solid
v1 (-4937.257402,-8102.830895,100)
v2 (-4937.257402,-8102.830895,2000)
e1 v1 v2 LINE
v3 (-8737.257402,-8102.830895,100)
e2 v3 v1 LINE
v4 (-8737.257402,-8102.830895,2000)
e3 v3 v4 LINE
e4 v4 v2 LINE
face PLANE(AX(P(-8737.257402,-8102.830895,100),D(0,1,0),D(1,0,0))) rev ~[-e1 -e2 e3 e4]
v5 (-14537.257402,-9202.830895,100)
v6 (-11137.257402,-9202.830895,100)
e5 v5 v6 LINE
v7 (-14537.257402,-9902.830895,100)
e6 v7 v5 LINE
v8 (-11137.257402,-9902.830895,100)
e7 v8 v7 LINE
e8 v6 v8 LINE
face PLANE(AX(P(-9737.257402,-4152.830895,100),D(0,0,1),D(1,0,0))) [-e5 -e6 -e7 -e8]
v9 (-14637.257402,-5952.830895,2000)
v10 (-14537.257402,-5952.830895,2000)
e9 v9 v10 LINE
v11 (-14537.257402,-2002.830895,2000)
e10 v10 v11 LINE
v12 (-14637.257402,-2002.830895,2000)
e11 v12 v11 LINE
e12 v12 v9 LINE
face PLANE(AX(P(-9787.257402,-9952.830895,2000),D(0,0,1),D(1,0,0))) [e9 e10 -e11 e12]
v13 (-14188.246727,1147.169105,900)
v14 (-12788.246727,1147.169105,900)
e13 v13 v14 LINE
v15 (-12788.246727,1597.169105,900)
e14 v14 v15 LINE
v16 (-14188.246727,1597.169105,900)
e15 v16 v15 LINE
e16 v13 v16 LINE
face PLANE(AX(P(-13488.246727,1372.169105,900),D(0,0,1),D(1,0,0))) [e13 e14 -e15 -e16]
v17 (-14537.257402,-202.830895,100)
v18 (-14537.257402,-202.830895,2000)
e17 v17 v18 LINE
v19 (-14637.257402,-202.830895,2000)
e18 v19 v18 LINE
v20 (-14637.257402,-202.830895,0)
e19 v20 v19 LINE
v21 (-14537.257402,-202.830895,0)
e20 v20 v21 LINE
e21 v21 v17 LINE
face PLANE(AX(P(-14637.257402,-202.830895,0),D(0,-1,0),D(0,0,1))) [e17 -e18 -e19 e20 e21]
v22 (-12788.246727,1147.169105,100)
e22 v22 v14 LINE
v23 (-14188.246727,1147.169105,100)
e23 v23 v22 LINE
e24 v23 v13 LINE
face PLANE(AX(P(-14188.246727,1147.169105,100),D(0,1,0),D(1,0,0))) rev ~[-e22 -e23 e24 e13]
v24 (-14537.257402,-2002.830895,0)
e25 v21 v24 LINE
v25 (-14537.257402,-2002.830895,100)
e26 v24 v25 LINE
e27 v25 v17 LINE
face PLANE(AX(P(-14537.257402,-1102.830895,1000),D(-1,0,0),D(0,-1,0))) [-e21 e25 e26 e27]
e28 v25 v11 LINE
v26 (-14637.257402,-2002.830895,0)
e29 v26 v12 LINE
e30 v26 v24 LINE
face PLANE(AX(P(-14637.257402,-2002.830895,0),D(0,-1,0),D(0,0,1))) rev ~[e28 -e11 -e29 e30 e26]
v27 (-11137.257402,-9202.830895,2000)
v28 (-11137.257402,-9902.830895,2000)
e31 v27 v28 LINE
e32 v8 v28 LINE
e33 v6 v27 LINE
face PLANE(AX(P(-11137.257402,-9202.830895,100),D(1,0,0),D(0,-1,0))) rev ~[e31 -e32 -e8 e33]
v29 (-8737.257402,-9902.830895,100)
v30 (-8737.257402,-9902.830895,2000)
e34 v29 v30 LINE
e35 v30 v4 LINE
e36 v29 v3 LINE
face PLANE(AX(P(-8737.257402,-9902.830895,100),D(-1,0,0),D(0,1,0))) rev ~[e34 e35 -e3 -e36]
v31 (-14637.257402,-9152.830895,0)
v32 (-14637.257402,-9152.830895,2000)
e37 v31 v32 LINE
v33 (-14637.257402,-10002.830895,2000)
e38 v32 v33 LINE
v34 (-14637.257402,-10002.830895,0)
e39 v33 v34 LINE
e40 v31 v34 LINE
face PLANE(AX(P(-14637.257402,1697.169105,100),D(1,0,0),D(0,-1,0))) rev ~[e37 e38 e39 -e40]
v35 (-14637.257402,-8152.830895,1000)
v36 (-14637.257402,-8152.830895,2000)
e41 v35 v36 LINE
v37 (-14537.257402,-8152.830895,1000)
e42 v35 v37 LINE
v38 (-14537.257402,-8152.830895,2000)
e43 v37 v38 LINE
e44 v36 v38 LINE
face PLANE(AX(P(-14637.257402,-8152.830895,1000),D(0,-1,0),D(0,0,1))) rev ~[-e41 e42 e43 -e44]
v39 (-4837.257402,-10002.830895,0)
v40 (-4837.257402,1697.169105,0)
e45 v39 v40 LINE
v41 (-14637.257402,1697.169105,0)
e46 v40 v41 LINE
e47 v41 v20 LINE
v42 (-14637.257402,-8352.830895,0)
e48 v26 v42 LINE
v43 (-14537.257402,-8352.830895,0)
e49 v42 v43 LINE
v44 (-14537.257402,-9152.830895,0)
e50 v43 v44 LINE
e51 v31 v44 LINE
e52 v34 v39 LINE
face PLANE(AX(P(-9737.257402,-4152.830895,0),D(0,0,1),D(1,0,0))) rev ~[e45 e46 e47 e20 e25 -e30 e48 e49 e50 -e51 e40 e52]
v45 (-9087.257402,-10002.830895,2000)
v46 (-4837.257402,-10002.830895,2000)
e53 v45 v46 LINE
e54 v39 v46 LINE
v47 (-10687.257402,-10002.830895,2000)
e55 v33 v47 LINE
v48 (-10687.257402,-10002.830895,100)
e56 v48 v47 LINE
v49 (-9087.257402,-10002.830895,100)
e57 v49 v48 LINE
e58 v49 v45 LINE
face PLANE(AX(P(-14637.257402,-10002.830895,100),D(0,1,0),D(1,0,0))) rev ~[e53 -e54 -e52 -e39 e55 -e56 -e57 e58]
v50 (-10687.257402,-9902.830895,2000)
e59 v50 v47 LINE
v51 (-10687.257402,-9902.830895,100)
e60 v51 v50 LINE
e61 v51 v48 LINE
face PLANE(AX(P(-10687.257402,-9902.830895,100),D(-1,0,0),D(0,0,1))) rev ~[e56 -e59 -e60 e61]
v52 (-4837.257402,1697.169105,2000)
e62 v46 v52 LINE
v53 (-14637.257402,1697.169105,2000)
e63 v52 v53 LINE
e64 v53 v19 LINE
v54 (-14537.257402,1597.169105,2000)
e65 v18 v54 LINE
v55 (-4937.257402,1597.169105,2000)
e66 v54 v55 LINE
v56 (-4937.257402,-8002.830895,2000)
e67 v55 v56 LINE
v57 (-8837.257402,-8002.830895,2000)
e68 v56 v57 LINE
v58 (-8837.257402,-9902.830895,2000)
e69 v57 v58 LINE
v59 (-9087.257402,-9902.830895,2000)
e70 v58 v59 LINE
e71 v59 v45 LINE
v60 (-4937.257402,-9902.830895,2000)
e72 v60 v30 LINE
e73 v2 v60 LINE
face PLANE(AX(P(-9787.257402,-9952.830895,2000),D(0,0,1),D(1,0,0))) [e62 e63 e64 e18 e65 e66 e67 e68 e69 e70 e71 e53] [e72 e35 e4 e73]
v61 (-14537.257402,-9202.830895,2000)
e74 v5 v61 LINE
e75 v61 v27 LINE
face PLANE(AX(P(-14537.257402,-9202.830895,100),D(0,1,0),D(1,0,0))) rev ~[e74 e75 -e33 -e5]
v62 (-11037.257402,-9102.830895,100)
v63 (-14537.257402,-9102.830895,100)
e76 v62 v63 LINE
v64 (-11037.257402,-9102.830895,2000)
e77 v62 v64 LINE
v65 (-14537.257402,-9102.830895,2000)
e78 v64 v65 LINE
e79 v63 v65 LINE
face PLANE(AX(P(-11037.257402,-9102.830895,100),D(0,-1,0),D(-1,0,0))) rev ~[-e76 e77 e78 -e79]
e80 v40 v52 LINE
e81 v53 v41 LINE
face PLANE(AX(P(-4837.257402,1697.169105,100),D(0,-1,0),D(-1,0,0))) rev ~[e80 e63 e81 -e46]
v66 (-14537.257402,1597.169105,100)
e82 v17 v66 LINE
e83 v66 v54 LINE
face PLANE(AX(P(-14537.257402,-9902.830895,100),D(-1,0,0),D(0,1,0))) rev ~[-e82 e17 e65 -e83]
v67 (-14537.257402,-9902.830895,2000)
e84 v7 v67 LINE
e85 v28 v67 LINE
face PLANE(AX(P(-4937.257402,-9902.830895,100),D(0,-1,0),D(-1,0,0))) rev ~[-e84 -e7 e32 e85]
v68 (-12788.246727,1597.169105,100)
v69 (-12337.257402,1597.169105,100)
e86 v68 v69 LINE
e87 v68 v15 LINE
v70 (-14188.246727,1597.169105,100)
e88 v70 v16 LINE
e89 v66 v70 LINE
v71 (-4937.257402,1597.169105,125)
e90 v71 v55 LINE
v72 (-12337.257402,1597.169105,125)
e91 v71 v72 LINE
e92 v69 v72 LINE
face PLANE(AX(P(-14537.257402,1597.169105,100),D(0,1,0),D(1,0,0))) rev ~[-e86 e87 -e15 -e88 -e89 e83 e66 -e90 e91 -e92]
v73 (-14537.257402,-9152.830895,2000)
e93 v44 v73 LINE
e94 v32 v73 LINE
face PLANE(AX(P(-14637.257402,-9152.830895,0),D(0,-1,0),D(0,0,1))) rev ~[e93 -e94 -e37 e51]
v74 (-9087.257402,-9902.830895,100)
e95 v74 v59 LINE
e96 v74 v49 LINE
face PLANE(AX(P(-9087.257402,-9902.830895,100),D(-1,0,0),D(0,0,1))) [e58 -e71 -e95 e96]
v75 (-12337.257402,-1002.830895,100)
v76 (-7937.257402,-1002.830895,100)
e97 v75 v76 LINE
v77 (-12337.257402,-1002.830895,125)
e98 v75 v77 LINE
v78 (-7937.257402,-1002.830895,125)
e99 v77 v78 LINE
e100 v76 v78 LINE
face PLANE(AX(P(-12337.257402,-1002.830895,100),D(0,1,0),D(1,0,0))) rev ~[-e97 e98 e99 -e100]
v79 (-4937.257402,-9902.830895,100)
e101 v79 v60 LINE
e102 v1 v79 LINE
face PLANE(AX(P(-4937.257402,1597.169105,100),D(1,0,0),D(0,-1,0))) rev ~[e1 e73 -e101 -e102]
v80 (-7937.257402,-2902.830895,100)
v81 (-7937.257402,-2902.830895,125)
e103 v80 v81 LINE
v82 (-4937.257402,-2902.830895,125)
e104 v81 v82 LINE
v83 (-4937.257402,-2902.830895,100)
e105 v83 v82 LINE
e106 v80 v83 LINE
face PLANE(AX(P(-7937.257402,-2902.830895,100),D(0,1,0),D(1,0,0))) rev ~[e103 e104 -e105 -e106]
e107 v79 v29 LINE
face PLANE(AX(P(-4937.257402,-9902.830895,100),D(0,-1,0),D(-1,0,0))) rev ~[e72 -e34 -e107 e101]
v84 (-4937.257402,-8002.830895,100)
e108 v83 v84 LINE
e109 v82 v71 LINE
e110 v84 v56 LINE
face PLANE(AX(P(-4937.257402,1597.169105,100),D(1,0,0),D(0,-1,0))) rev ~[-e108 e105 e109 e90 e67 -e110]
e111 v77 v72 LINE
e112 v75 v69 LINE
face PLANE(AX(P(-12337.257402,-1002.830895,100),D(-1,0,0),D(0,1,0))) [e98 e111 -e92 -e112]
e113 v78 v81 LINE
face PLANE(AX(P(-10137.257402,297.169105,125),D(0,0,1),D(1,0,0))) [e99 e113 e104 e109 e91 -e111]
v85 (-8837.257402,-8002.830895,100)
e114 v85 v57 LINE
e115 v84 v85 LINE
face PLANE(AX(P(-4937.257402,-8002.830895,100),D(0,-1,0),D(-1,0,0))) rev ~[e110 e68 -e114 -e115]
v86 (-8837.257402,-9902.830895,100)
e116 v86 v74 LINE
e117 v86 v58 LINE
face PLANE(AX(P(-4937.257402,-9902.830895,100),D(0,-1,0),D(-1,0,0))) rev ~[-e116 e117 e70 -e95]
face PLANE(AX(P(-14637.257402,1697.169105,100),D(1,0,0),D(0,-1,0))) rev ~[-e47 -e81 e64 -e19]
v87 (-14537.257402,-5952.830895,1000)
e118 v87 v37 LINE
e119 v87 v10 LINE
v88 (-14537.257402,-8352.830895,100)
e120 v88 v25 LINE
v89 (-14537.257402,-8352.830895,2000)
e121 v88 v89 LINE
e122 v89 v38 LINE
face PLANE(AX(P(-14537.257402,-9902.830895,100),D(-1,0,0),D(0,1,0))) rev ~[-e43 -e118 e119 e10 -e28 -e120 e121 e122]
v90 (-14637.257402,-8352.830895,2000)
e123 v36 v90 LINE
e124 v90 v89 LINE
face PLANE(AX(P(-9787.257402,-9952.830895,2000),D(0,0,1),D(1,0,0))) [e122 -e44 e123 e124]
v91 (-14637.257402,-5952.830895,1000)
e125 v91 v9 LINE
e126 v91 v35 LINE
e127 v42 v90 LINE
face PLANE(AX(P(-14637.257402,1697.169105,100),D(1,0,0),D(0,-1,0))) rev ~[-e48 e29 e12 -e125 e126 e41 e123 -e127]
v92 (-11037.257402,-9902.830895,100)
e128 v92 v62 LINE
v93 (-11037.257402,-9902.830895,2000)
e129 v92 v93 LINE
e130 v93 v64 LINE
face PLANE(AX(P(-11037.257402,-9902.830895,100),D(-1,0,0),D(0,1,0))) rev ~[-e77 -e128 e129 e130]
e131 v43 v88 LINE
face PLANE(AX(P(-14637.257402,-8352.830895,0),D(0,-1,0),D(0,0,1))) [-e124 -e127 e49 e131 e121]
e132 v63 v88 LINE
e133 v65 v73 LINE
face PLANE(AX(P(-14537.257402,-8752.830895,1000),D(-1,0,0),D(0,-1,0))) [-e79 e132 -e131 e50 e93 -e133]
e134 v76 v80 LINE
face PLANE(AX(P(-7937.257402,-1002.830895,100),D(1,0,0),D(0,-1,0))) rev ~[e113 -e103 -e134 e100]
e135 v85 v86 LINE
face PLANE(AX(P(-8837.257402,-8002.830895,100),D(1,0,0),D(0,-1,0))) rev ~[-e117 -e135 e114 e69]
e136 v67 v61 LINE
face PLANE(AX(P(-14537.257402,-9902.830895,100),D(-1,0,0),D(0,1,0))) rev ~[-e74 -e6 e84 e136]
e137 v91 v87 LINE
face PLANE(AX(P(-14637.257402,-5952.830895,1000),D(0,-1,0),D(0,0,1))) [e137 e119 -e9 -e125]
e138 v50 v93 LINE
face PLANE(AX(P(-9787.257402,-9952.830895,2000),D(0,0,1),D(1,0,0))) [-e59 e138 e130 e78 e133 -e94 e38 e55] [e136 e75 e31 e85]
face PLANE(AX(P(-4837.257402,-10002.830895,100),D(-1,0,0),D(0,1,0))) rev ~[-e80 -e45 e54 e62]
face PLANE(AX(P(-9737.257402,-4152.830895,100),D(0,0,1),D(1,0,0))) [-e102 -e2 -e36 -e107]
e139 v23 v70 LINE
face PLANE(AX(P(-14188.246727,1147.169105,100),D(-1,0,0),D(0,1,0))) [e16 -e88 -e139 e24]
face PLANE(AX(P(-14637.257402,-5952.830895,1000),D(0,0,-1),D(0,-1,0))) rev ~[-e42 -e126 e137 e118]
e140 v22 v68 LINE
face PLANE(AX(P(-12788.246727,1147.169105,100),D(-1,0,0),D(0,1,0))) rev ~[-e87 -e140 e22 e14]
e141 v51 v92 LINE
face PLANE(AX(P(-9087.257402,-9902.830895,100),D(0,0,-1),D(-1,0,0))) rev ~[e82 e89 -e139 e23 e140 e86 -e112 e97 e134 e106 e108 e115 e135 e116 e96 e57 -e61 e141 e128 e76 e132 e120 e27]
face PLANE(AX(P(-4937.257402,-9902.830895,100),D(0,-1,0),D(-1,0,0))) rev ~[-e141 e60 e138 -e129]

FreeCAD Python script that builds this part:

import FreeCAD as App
import Part
import Sketcher


def add_polygon(sketch, points):
    """Adds a closed chain of lines whose ends are joined by coincident constraints."""
    first, n = sketch.GeometryCount, len(points)
    for a, b in zip(points, points[1:] + points[:1]):
        sketch.addGeometry(Part.LineSegment(App.Vector(*a, 0), App.Vector(*b, 0)), False)
    for i in range(n):
        sketch.addConstraint(Sketcher.Constraint("Coincident", first + i, 2, first + (i + 1) % n, 1))

doc = App.newDocument("Part")
params = doc.addObject("Spreadsheet::Sheet", "Params")
for row, (alias, value) in enumerate([
    ("sketch1_width", "9800 mm"),
    ("sketch1_height", "11700 mm"),
    ("pad1_length", "100 mm"),
    ("sketch2_width", "9800 mm"),
    ("sketch2_width2", "9600 mm"),
    ("sketch2_height", "11700 mm"),
    ("sketch2_height2", "11500 mm"),
    ("pad2_length", "1900 mm"),
    ("sketch3_width", "100 mm"),
    ("sketch3_width2", "3500 mm"),
    ("sketch3_width3", "3800 mm"),
    ("sketch3_height", "800 mm"),
    ("sketch3_height2", "1900 mm"),
    ("pad3_length", "1900 mm"),
    ("sketch4_width", "1800 mm"),
    ("sketch4_width2", "800 mm"),
    ("sketch4_width3", "2200 mm"),
    ("sketch4_height", "2000 mm"),
    ("sketch4_height2", "1000 mm"),
    ("pocket1_length", "100 mm"),
    ("sketch5_width", "1600 mm"),
    ("sketch5_height", "2000 mm"),
    ("pocket2_length", "100 mm"),
    ("sketch6_width", "4400 mm"),
    ("sketch6_width2", "3000 mm"),
    ("sketch6_height", "2600 mm"),
    ("sketch6_height2", "1900 mm"),
    ("pad4_length", "25 mm"),
    ("sketch7_width", "1400 mm"),
    ("sketch7_height", "450 mm"),
    ("pad5_length", "800 mm"),
], start=1):
    params.set(f"A{row}", alias)
    params.set(f"B{row}", "=" + value)
    params.setAlias(f"B{row}", alias)

body = doc.addObject("PartDesign::Body", "Body")

# Sketch on XY plane
sketch1 = body.newObject("Sketcher::SketchObject", "Sketch")
sketch1.AttachmentSupport = (doc.getObject("XY_Plane"), [""])
sketch1.MapMode = "FlatFace"
add_polygon(sketch1, [(-4837, 1697), (-14637, 1697), (-14637, -10003), (-4837, -10003)])  # lines 0-3
sketch1.addConstraint([
    Sketcher.Constraint("Horizontal", 0),
    Sketcher.Constraint("Vertical", 1),
    Sketcher.Constraint("Horizontal", 2),
    Sketcher.Constraint("Vertical", 3),
    Sketcher.Constraint("DistanceX", 0, 2, 0, 1, 9800.0),
    Sketcher.Constraint("DistanceY", 1, 2, 1, 1, 11700.0),
    Sketcher.Constraint("DistanceX", 0, 2, -1, 1, 14637.257402),
    Sketcher.Constraint("DistanceY", -1, 1, 0, 2, 1697.169105),
])
sketch1.setExpression("Constraints[8]", "Params.sketch1_width")
sketch1.setExpression("Constraints[9]", "Params.sketch1_height")
pad1 = body.newObject("PartDesign::Pad", "Pad")
pad1.Profile = sketch1
pad1.setExpression("Length", "Params.pad1_length")

# Sketch on XY plane
sketch2 = body.newObject("Sketcher::SketchObject", "Sketch001")
sketch2.AttachmentSupport = (doc.getObject("XY_Plane"), [""])
sketch2.MapMode = "FlatFace"
sketch2.AttachmentOffset = App.Placement(App.Vector(0, 0, 100), App.Rotation())
add_polygon(sketch2, [(-14637, -10003), (-4837, -10003), (-4837, 1697), (-14637, 1697)])  # lines 0-3
add_polygon(sketch2, [(-4937, 1597), (-4937, -9903), (-14537, -9903), (-14537, 1597)])  # lines 4-7
sketch2.addConstraint([
    Sketcher.Constraint("Horizontal", 0),
    Sketcher.Constraint("Vertical", 1),
    Sketcher.Constraint("Horizontal", 2),
    Sketcher.Constraint("Vertical", 3),
    Sketcher.Constraint("Vertical", 4),
    Sketcher.Constraint("Horizontal", 5),
    Sketcher.Constraint("Vertical", 6),
    Sketcher.Constraint("Horizontal", 7),
    Sketcher.Constraint("DistanceX", 0, 1, 0, 2, 9800.0),
    Sketcher.Constraint("DistanceX", 5, 2, 5, 1, 9600.0),
    Sketcher.Constraint("DistanceY", 1, 1, 1, 2, 11700.0),
    Sketcher.Constraint("DistanceY", 4, 2, 4, 1, 11500.0),
    Sketcher.Constraint("DistanceX", 4, 2, 0, 2, 100.0),
    Sketcher.Constraint("DistanceY", 0, 2, 4, 2, 100.0),
    Sketcher.Constraint("DistanceX", 0, 2, -1, 1, 4837.257402),
    Sketcher.Constraint("DistanceY", 0, 2, -1, 1, 10002.830895),
])
sketch2.setExpression("Constraints[16]", "Params.sketch2_width")
sketch2.setExpression("Constraints[17]", "Params.sketch2_width2")
sketch2.setExpression("Constraints[18]", "Params.sketch2_height")
sketch2.setExpression("Constraints[19]", "Params.sketch2_height2")
pad2 = body.newObject("PartDesign::Pad", "Pad001")
pad2.Profile = sketch2
pad2.setExpression("Length", "Params.pad2_length")

# Sketch on XY plane
sketch3 = body.newObject("Sketcher::SketchObject", "Sketch002")
sketch3.AttachmentSupport = (doc.getObject("XY_Plane"), [""])
sketch3.MapMode = "FlatFace"
sketch3.AttachmentOffset = App.Placement(App.Vector(0, 0, 100), App.Rotation())
add_polygon(sketch3, [(-11137, -9903), (-11037, -9903), (-11037, -9103), (-14537, -9103), (-14537, -9203), (-11137, -9203)])  # lines 0-5
add_polygon(sketch3, [(-8837, -8003), (-8837, -9903), (-8737, -9903), (-8737, -8103), (-4937, -8103), (-4937, -8003)])  # lines 6-11
sketch3.addConstraint([
    Sketcher.Constraint("Horizontal", 0),
    Sketcher.Constraint("Vertical", 1),
    Sketcher.Constraint("Horizontal", 2),
    Sketcher.Constraint("Vertical", 3),
    Sketcher.Constraint("Horizontal", 4),
    Sketcher.Constraint("Vertical", 5),
    Sketcher.Constraint("Vertical", 6),
    Sketcher.Constraint("Horizontal", 7),
    Sketcher.Constraint("Vertical", 8),
    Sketcher.Constraint("Horizontal", 9),
    Sketcher.Constraint("Vertical", 10),
    Sketcher.Constraint("Horizontal", 11),
    Sketcher.Constraint("Horizontal", 5, 2, 6, 2),
    Sketcher.Constraint("Equal", 0, 7),
    Sketcher.Constraint("Equal", 7, 3),
    Sketcher.Constraint("Equal", 3, 10),
    Sketcher.Constraint("DistanceX", 0, 1, 0, 2, 100.0),
    Sketcher.Constraint("DistanceX", 2, 2, 2, 1, 3500.0),
    Sketcher.Constraint("DistanceX", 9, 1, 9, 2, 3800.0),
    Sketcher.Constraint("DistanceY", 1, 1, 1, 2, 800.0),
    Sketcher.Constraint("DistanceY", 6, 2, 6, 1, 1900.0),
    Sketcher.Constraint("DistanceX", 0, 2, 6, 2, 2200.0),
    Sketcher.Constraint("DistanceX", 0, 2, -1, 1, 11037.257402),
    Sketcher.Constraint("DistanceY", 0, 2, -1, 1, 9902.830895),
])
sketch3.setExpression("Constraints[28]", "Params.sketch3_width")
sketch3.setExpression("Constraints[29]", "Params.sketch3_width2")
sketch3.setExpression("Constraints[30]", "Params.sketch3_width3")
sketch3.setExpression("Constraints[31]", "Params.sketch3_height")
sketch3.setExpression("Constraints[32]", "Params.sketch3_height2")
pad3 = body.newObject("PartDesign::Pad", "Pad002")
pad3.Profile = sketch3
pad3.setExpression("Length", "Params.pad3_length")

# Sketch on YZ plane
sketch4 = body.newObject("Sketcher::SketchObject", "Sketch003")
sketch4.AttachmentSupport = (doc.getObject("YZ_Plane"), [""])
sketch4.MapMode = "FlatFace"
sketch4.AttachmentOffset = App.Placement(App.Vector(0, 0, -14637.257402), App.Rotation())
add_polygon(sketch4, [(-203, 2000), (-203, 0), (-2003, 0), (-2003, 2000)])  # lines 0-3
add_polygon(sketch4, [(-8353, 2000), (-8353, 0), (-9153, 0), (-9153, 2000)])  # lines 4-7
add_polygon(sketch4, [(-5953, 2000), (-5953, 1000), (-8153, 1000), (-8153, 2000)])  # lines 8-11
sketch4.addConstraint([
    Sketcher.Constraint("Vertical", 0),
    Sketcher.Constraint("Horizontal", 1),
    Sketcher.Constraint("Vertical", 2),
    Sketcher.Constraint("Horizontal", 3),
    Sketcher.Constraint("Vertical", 4),
    Sketcher.Constraint("Horizontal", 5),
    Sketcher.Constraint("Vertical", 6),
    Sketcher.Constraint("Horizontal", 7),
    Sketcher.Constraint("Vertical", 8),
    Sketcher.Constraint("Horizontal", 9),
    Sketcher.Constraint("Vertical", 10),
    Sketcher.Constraint("Horizontal", 11),
    Sketcher.Constraint("PointOnObject", 0, 2, -1),
    Sketcher.Constraint("PointOnObject", 4, 2, -1),
    Sketcher.Constraint("Horizontal", 3, 2, 6, 2),
    Sketcher.Constraint("Horizontal", 7, 2, 10, 2),
    Sketcher.Constraint("DistanceX", 1, 2, 1, 1, 1800.0),
    Sketcher.Constraint("DistanceX", 5, 2, 5, 1, 800.0),
    Sketcher.Constraint("DistanceX", 9, 2, 9, 1, 2200.0),
    Sketcher.Constraint("DistanceY", 0, 2, 0, 1, 2000.0),
    Sketcher.Constraint("DistanceY", 8, 2, 8, 1, 1000.0),
    Sketcher.Constraint("DistanceX", 4, 2, 1, 2, 6350.0),
    Sketcher.Constraint("DistanceX", 4, 2, 8, 2, 2400.0),
    Sketcher.Constraint("DistanceX", 0, 2, -1, 1, 202.830895),
])
sketch4.setExpression("Constraints[28]", "Params.sketch4_width")
sketch4.setExpression("Constraints[29]", "Params.sketch4_width2")
sketch4.setExpression("Constraints[30]", "Params.sketch4_width3")
sketch4.setExpression("Constraints[31]", "Params.sketch4_height")
sketch4.setExpression("Constraints[32]", "Params.sketch4_height2")
pocket1 = body.newObject("PartDesign::Pocket", "Pocket")
pocket1.Profile = sketch4
pocket1.setExpression("Length", "Params.pocket1_length")
pocket1.Reversed = True

# Sketch on XZ plane
sketch5 = body.newObject("Sketcher::SketchObject", "Sketch004")
sketch5.AttachmentSupport = (doc.getObject("XZ_Plane"), [""])
sketch5.MapMode = "FlatFace"
sketch5.AttachmentOffset = App.Placement(App.Vector(0, 0, 9902.830895), App.Rotation())
add_polygon(sketch5, [(-9087, 2100), (-9087, 100), (-10687, 100), (-10687, 2100)])  # lines 0-3
sketch5.addConstraint([
    Sketcher.Constraint("Vertical", 0),
    Sketcher.Constraint("Horizontal", 1),
    Sketcher.Constraint("Vertical", 2),
    Sketcher.Constraint("Horizontal", 3),
    Sketcher.Constraint("DistanceX", 1, 2, 1, 1, 1600.0),
    Sketcher.Constraint("DistanceY", 0, 2, 0, 1, 2000.0),
    Sketcher.Constraint("DistanceY", -1, 1, 0, 2, 100.0),
    Sketcher.Constraint("DistanceX", 0, 2, -1, 1, 9087.257402),
])
sketch5.setExpression("Constraints[8]", "Params.sketch5_width")
sketch5.setExpression("Constraints[9]", "Params.sketch5_height")
pocket2 = body.newObject("PartDesign::Pocket", "Pocket001")
pocket2.Profile = sketch5
pocket2.setExpression("Length", "Params.pocket2_length")
pocket2.Reversed = True

# Sketch on XY plane
sketch6 = body.newObject("Sketcher::SketchObject", "Sketch005")
sketch6.AttachmentSupport = (doc.getObject("XY_Plane"), [""])
sketch6.MapMode = "FlatFace"
sketch6.AttachmentOffset = App.Placement(App.Vector(0, 0, 100), App.Rotation())
add_polygon(sketch6, [(-12337, 1597), (-12337, -1003), (-7937, -1003), (-7937, -2903), (-4937, -2903), (-4937, 1597)])  # lines 0-5
sketch6.addConstraint([
    Sketcher.Constraint("Vertical", 0),
    Sketcher.Constraint("Horizontal", 1),
    Sketcher.Constraint("Vertical", 2),
    Sketcher.Constraint("Horizontal", 3),
    Sketcher.Constraint("Vertical", 4),
    Sketcher.Constraint("Horizontal", 5),
    Sketcher.Constraint("DistanceX", 1, 1, 1, 2, 4400.0),
    Sketcher.Constraint("DistanceX", 3, 1, 3, 2, 3000.0),
    Sketcher.Constraint("DistanceY", 0, 2, 0, 1, 2600.0),
    Sketcher.Constraint("DistanceY", 2, 2, 2, 1, 1900.0),
    Sketcher.Constraint("DistanceX", 0, 2, -1, 1, 12337.257402),
    Sketcher.Constraint("DistanceY", 0, 2, -1, 1, 1002.830895),
])
sketch6.setExpression("Constraints[12]", "Params.sketch6_width")
sketch6.setExpression("Constraints[13]", "Params.sketch6_width2")
sketch6.setExpression("Constraints[14]", "Params.sketch6_height")
sketch6.setExpression("Constraints[15]", "Params.sketch6_height2")
pad4 = body.newObject("PartDesign::Pad", "Pad003")
pad4.Profile = sketch6
pad4.setExpression("Length", "Params.pad4_length")

# Sketch on XY plane
sketch7 = body.newObject("Sketcher::SketchObject", "Sketch006")
sketch7.AttachmentSupport = (doc.getObject("XY_Plane"), [""])
sketch7.MapMode = "FlatFace"
sketch7.AttachmentOffset = App.Placement(App.Vector(0, 0, 100), App.Rotation())
add_polygon(sketch7, [(-14188, 1597), (-14188, 1147), (-12788, 1147), (-12788, 1597)])  # lines 0-3
sketch7.addConstraint([
    Sketcher.Constraint("Vertical", 0),
    Sketcher.Constraint("Horizontal", 1),
    Sketcher.Constraint("Vertical", 2),
    Sketcher.Constraint("Horizontal", 3),
    Sketcher.Constraint("DistanceX", 1, 1, 1, 2, 1400.0),
    Sketcher.Constraint("DistanceY", 0, 2, 0, 1, 450.0),
    Sketcher.Constraint("DistanceX", 0, 2, -1, 1, 14188.246727),
    Sketcher.Constraint("DistanceY", -1, 1, 0, 2, 1147.169105),
])
sketch7.setExpression("Constraints[8]", "Params.sketch7_width")
sketch7.setExpression("Constraints[9]", "Params.sketch7_height")
pad5 = body.newObject("PartDesign::Pad", "Pad004")
pad5.Profile = sketch7
pad5.setExpression("Length", "Params.pad5_length")

doc.recompute()
